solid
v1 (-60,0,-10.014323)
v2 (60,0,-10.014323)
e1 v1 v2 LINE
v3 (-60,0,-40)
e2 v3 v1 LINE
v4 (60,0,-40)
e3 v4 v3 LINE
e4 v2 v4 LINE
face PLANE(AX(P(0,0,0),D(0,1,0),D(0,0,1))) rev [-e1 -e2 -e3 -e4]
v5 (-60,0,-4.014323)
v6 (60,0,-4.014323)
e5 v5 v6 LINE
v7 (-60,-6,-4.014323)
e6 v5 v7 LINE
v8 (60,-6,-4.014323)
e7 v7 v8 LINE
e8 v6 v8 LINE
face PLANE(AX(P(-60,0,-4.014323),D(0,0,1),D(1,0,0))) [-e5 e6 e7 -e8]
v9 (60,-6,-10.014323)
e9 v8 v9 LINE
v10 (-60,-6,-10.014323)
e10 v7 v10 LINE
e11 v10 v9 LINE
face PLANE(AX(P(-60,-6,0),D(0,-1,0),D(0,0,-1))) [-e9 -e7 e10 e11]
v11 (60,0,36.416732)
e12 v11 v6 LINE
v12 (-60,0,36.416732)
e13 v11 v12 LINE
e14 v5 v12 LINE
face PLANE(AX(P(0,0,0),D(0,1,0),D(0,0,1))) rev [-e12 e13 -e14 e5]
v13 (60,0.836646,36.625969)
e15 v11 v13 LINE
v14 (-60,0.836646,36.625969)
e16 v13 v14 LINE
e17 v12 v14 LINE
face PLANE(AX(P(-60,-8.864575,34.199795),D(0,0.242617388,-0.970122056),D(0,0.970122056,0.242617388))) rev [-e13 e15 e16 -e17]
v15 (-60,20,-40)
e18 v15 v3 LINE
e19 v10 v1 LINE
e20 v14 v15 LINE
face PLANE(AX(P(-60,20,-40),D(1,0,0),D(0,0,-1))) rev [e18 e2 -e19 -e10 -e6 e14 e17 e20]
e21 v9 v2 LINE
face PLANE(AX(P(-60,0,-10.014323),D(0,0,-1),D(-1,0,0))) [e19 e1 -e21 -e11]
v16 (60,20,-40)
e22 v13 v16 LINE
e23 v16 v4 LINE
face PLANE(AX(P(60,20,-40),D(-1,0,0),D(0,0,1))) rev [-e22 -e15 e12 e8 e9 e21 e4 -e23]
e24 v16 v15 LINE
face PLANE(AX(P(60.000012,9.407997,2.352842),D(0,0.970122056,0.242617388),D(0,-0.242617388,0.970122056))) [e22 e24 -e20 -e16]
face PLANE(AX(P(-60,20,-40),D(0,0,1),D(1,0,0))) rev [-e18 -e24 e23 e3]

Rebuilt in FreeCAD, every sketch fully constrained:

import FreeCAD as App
import Part
import Sketcher

V = App.Vector


def add_polygon(sketch, points):
    """Adds a closed chain of lines whose ends are joined by coincident constraints."""
    first, n = sketch.GeometryCount, len(points)
    for a, b in zip(points, points[1:] + points[:1]):
        sketch.addGeometry(Part.LineSegment(App.Vector(*a, 0), App.Vector(*b, 0)), False)
    for i in range(n):
        sketch.addConstraint(Sketcher.Constraint("Coincident", first + i, 2, first + (i + 1) % n, 1))

doc = App.newDocument("Part")
body = doc.addObject("PartDesign::Body", "Body")

# Sketch on XZ plane
sketch1 = body.newObject("Sketcher::SketchObject", "Sketch")
sketch1.AttachmentSupport = (doc.getObject("XZ_Plane"), [""])
sketch1.MapMode = "FlatFace"
add_polygon(sketch1, [(-60, -40), (-60, 40), (60, 40), (60, -40)])  # lines 0-3
sketch1.addConstraint(Sketcher.Constraint("Vertical", 0))
sketch1.addConstraint(Sketcher.Constraint("Horizontal", 1))
sketch1.addConstraint(Sketcher.Constraint("Vertical", 2))
sketch1.addConstraint(Sketcher.Constraint("Horizontal", 3))
sketch1.addConstraint(Sketcher.Constraint("Symmetric", 0, 2, 2, 2, -1, 1))
sketch1.addConstraint(Sketcher.Constraint("DistanceX", 1, 1, 1, 2, 120.0))
sketch1.addConstraint(Sketcher.Constraint("DistanceY", 0, 1, 0, 2, 80.0))
pad1 = body.newObject("PartDesign::Pad", "Pad")
pad1.Profile = sketch1
pad1.Length = 20
pad1.Reversed = True

# Sketch on YZ plane
sketch2 = body.newObject("Sketcher::SketchObject", "Sketch001")
sketch2.AttachmentSupport = (doc.getObject("YZ_Plane"), [""])
sketch2.MapMode = "FlatFace"
sketch2.AttachmentOffset = App.Placement(V(0, 0, 60), App.Rotation())
add_polygon(sketch2, [(20, 40), (0, 40), (0, 39.971354), (20, -40)])  # lines 0-3
sketch2.addConstraint(Sketcher.Constraint("Horizontal", 0))
sketch2.addConstraint(Sketcher.Constraint("Vertical", 1))
sketch2.addConstraint(Sketcher.Constraint("Vertical", 3))
sketch2.addConstraint(Sketcher.Constraint("PointOnObject", 0, 2, -2))
sketch2.addConstraint(Sketcher.Constraint("DistanceX", 0, 2, 0, 1, 20.0))
sketch2.addConstraint(Sketcher.Constraint("DistanceY", 3, 1, 3, 2, 80.0))
sketch2.addConstraint(Sketcher.Constraint("DistanceY", -1, 1, 0, 2, 40.0))
sketch2.addConstraint(Sketcher.Constraint("DistanceY", 1, 2, 1, 1, 0.028646))
pocket1 = body.newObject("PartDesign::Pocket", "Pocket")
pocket1.Profile = sketch2
pocket1.Type = "ThroughAll"
pocket1.Midplane = True

# Sketch on YZ plane
sketch3 = body.newObject("Sketcher::SketchObject", "Sketch002")
sketch3.AttachmentSupport = (doc.getObject("YZ_Plane"), [""])
sketch3.MapMode = "FlatFace"
sketch3.AttachmentOffset = App.Placement(V(0, 0, 60), App.Rotation())
add_polygon(sketch3, [(0, -4.014323), (-6, -4.014323), (-6, -10.014323), (0, -10.014323)])  # lines 0-3
sketch3.addConstraint(Sketcher.Constraint("Horizontal", 0))
sketch3.addConstraint(Sketcher.Constraint("Vertical", 1))
sketch3.addConstraint(Sketcher.Constraint("Horizontal", 2))
sketch3.addConstraint(Sketcher.Constraint("Vertical", 3))
sketch3.addConstraint(Sketcher.Constraint("PointOnObject", 2, 2, -2))
sketch3.addConstraint(Sketcher.Constraint("Equal", 2, 1))
sketch3.addConstraint(Sketcher.Constraint("DistanceX", 0, 2, 0, 1, 6.0))
sketch3.addConstraint(Sketcher.Constraint("DistanceY", 0, 2, -1, 1, 4.014323))
pad2 = body.newObject("PartDesign::Pad", "Pad001")
pad2.Profile = sketch3
pad2.Length = 120
pad2.Reversed = True

# Sketch on an angled plane
sketch4 = body.newObject("Sketcher::SketchObject", "Sketch003")
sketch4.Placement = App.Placement(V(0, 9.407997, 2.352842), App.Rotation(V(1, 0, 0), V(0, 0.242617388, -0.970122056), V(0, 0.970122056, 0.242617388), "ZXY"))
add_polygon(sketch4, [(-60, -35.328675), (-60, -38.777093), (60, -38.777093), (60, -35.328675)])  # lines 0-3
sketch4.addConstraint(Sketcher.Constraint("Vertical", 0))
sketch4.addConstraint(Sketcher.Constraint("Horizontal", 1))
sketch4.addConstraint(Sketcher.Constraint("Vertical", 2))
sketch4.addConstraint(Sketcher.Constraint("Horizontal", 3))
sketch4.addConstraint(Sketcher.Constraint("DistanceX", 1, 1, 1, 2, 120.0))
sketch4.addConstraint(Sketcher.Constraint("DistanceX", 0, 2, -1, 1, 60.0))
sketch4.addConstraint(Sketcher.Constraint("DistanceY", 0, 2, 0, 1, 3.448417))
sketch4.addConstraint(Sketcher.Constraint("DistanceY", 0, 2, -1, 1, 38.777093))
pocket2 = body.newObject("PartDesign::Pocket", "Pocket001")
pocket2.Profile = sketch4
pocket2.Length = 10

doc.recompute()
